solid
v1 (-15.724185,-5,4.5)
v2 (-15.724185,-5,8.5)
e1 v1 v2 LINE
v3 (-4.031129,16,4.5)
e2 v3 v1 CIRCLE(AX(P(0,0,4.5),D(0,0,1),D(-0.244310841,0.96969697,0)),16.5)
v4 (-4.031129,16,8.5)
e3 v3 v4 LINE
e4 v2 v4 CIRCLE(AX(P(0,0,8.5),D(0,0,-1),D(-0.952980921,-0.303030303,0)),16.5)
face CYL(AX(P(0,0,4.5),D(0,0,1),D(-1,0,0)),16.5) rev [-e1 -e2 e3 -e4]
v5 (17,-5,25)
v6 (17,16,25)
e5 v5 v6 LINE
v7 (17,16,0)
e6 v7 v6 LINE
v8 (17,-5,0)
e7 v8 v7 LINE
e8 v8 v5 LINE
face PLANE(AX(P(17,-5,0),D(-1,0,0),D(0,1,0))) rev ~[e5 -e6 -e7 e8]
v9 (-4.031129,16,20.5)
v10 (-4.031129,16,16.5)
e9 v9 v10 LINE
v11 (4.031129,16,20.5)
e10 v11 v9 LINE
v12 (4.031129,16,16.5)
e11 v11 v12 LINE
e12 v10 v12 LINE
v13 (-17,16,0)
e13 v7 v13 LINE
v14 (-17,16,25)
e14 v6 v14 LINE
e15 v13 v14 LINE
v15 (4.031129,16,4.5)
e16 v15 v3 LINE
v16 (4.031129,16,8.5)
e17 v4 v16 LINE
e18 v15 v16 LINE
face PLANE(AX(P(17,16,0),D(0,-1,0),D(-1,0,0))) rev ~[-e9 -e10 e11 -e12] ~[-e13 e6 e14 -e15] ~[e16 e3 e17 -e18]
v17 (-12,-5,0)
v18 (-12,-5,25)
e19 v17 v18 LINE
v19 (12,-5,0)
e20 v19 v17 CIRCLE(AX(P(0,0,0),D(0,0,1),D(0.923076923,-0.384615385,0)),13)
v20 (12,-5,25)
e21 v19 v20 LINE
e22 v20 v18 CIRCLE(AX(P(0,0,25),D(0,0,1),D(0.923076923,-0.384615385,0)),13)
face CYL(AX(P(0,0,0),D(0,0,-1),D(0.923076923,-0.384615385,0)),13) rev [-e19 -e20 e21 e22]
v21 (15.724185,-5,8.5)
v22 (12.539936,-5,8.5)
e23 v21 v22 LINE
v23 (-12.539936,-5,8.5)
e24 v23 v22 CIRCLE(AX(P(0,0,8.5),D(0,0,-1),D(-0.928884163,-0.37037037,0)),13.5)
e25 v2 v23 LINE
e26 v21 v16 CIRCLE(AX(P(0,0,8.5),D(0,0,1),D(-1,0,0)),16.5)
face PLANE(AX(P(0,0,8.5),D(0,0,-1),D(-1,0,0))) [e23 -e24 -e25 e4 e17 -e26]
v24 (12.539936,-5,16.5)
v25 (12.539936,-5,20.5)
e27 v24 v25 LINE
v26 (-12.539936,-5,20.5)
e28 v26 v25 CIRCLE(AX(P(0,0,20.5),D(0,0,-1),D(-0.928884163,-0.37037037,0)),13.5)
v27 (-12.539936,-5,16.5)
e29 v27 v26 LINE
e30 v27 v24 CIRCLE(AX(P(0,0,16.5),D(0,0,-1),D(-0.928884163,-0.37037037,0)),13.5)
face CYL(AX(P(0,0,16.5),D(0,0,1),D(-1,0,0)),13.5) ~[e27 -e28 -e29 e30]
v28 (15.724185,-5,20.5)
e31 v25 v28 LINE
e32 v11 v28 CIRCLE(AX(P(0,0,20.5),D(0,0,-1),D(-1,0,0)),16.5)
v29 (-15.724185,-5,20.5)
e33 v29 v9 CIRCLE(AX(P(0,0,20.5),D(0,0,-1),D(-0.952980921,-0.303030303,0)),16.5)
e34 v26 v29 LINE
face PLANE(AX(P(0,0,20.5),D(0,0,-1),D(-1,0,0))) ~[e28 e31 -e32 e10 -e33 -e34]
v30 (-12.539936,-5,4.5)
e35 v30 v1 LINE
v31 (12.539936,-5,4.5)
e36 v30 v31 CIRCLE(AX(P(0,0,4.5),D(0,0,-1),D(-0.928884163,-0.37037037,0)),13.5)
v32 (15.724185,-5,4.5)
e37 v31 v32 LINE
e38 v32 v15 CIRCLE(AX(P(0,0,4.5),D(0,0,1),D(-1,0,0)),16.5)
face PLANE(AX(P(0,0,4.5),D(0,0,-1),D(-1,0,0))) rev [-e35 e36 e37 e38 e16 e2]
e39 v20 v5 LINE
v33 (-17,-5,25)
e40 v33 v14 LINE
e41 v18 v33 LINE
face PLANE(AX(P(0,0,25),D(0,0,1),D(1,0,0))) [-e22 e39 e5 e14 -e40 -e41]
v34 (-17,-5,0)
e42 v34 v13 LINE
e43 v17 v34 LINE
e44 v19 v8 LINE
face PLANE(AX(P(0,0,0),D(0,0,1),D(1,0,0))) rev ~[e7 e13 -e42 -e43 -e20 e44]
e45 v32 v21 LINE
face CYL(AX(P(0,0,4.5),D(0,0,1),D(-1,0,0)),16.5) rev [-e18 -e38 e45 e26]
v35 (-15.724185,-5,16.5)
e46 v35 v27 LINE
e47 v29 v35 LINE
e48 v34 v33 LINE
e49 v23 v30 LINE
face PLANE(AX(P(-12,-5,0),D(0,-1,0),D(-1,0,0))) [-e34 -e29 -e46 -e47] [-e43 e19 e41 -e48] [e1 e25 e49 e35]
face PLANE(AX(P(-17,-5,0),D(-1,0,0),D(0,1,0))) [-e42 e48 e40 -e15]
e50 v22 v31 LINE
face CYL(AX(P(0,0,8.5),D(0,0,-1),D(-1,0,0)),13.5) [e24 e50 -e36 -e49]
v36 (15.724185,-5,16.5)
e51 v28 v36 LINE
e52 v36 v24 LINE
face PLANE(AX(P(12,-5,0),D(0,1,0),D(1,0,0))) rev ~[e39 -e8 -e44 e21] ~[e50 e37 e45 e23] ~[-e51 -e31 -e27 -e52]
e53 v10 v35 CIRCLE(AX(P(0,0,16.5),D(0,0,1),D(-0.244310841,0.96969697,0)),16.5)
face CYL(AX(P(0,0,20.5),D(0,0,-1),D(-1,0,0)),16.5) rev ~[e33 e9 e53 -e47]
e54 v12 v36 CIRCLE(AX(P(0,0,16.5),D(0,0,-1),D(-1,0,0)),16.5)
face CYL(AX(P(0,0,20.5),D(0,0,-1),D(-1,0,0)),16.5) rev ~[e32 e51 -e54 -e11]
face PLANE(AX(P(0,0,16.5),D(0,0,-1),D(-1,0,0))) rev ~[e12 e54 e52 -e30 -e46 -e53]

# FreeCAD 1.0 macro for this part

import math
import FreeCAD as App
import Part
import Sketcher

V = App.Vector
Q = App.Units.Quantity

doc = App.newDocument("Part")
body = doc.addObject("PartDesign::Body", "Body")

# Sketch on XY plane
sketch1 = doc.addObject("Sketcher::SketchObject", "Sketch")
body.addObject(sketch1)
sketch1.AttachmentSupport = (doc.XY_Plane, [""])
sketch1.MapMode = "FlatFace"
sketch1.addGeometry(Part.ArcOfCircle(Part.Circle(V(0, 0, 0), V(0, 0, 1), 13), math.radians(-22.619865), math.radians(202.619865)), False)
sketch1.addGeometry(Part.LineSegment(V(12, -5, 0), V(17, -5, 0)), False)
sketch1.addGeometry(Part.LineSegment(V(17, -5, 0), V(17, 16, 0)), False)
sketch1.addGeometry(Part.LineSegment(V(17, 16, 0), V(-17, 16, 0)), False)
sketch1.addGeometry(Part.LineSegment(V(-17, 16, 0), V(-17, -5, 0)), False)
sketch1.addGeometry(Part.LineSegment(V(-17, -5, 0), V(-12, -5, 0)), False)
sketch1.addConstraint(Sketcher.Constraint("Coincident", 0, 1, 1, 1))
sketch1.addConstraint(Sketcher.Constraint("Coincident", 1, 2, 2, 1))
sketch1.addConstraint(Sketcher.Constraint("Coincident", 2, 2, 3, 1))
sketch1.addConstraint(Sketcher.Constraint("Coincident", 3, 2, 4, 1))
sketch1.addConstraint(Sketcher.Constraint("Coincident", 4, 2, 5, 1))
sketch1.addConstraint(Sketcher.Constraint("Coincident", 5, 2, 0, 2))
sketch1.addConstraint(Sketcher.Constraint("Horizontal", 1))
sketch1.addConstraint(Sketcher.Constraint("Vertical", 2))
sketch1.addConstraint(Sketcher.Constraint("Horizontal", 3))
sketch1.addConstraint(Sketcher.Constraint("Vertical", 4))
sketch1.addConstraint(Sketcher.Constraint("Horizontal", 5))
sketch1.addConstraint(Sketcher.Constraint("Coincident", 0, 3, -1, 1))
sketch1.addConstraint(Sketcher.Constraint("Symmetric", 1, 2, 4, 2, -2))
sketch1.addConstraint(Sketcher.Constraint("Radius", 0, Q("13 mm")))
sketch1.addConstraint(Sketcher.Constraint("DistanceX", 1, 1, 1, 2, Q("5 mm")))
sketch1.addConstraint(Sketcher.Constraint("DistanceY", 2, 1, 2, 2, Q("21 mm")))
sketch1.addConstraint(Sketcher.Constraint("DistanceY", 0, 1, -1, 1, Q("5 mm")))
pad1 = doc.addObject("PartDesign::Pad", "Pad")
body.addObject(pad1)
pad1.Profile = sketch1
pad1.Length = 25

# Sketch on XZ plane
sketch2 = doc.addObject("Sketcher::SketchObject", "Sketch001")
body.addObject(sketch2)
sketch2.AttachmentSupport = (doc.XZ_Plane, [""])
sketch2.MapMode = "FlatFace"
sketch2.addGeometry(Part.LineSegment(V(-16.5, 16.5, 0), V(-13.5, 16.5, 0)), False)
sketch2.addGeometry(Part.LineSegment(V(-13.5, 16.5, 0), V(-13.5, 20.5, 0)), False)
sketch2.addGeometry(Part.LineSegment(V(-13.5, 20.5, 0), V(-16.5, 20.5, 0)), False)
sketch2.addGeometry(Part.LineSegment(V(-16.5, 20.5, 0), V(-16.5, 16.5, 0)), False)
sketch2.addGeometry(Part.LineSegment(V(-13.5, 8.5, 0), V(-16.5, 8.5, 0)), False)
sketch2.addGeometry(Part.LineSegment(V(-16.5, 8.5, 0), V(-16.5, 4.5, 0)), False)
sketch2.addGeometry(Part.LineSegment(V(-16.5, 4.5, 0), V(-13.5, 4.5, 0)), False)
sketch2.addGeometry(Part.LineSegment(V(-13.5, 4.5, 0), V(-13.5, 8.5, 0)), False)
sketch2.addGeometry(Part.LineSegment(V(13.5, 16.5, 0), V(16.5, 16.5, 0)), False)
sketch2.addGeometry(Part.LineSegment(V(16.5, 16.5, 0), V(16.5, 20.5, 0)), False)
sketch2.addGeometry(Part.LineSegment(V(16.5, 20.5, 0), V(13.5, 20.5, 0)), False)
sketch2.addGeometry(Part.LineSegment(V(13.5, 20.5, 0), V(13.5, 16.5, 0)), False)
sketch2.addGeometry(Part.LineSegment(V(16.5, 8.5, 0), V(13.5, 8.5, 0)), False)
sketch2.addGeometry(Part.LineSegment(V(13.5, 8.5, 0), V(13.5, 4.5, 0)), False)
sketch2.addGeometry(Part.LineSegment(V(13.5, 4.5, 0), V(16.5, 4.5, 0)), False)
sketch2.addGeometry(Part.LineSegment(V(16.5, 4.5, 0), V(16.5, 8.5, 0)), False)
sketch2.addConstraint(Sketcher.Constraint("Coincident", 0, 2, 1, 1))
sketch2.addConstraint(Sketcher.Constraint("Coincident", 1, 2, 2, 1))
sketch2.addConstraint(Sketcher.Constraint("Coincident", 2, 2, 3, 1))
sketch2.addConstraint(Sketcher.Constraint("Coincident", 3, 2, 0, 1))
sketch2.addConstraint(Sketcher.Constraint("Coincident", 4, 2, 5, 1))
sketch2.addConstraint(Sketcher.Constraint("Coincident", 5, 2, 6, 1))
sketch2.addConstraint(Sketcher.Constraint("Coincident", 6, 2, 7, 1))
sketch2.addConstraint(Sketcher.Constraint("Coincident", 7, 2, 4, 1))
sketch2.addConstraint(Sketcher.Constraint("Coincident", 8, 2, 9, 1))
sketch2.addConstraint(Sketcher.Constraint("Coincident", 9, 2, 10, 1))
sketch2.addConstraint(Sketcher.Constraint("Coincident", 10, 2, 11, 1))
sketch2.addConstraint(Sketcher.Constraint("Coincident", 11, 2, 8, 1))
sketch2.addConstraint(Sketcher.Constraint("Coincident", 12, 2, 13, 1))
sketch2.addConstraint(Sketcher.Constraint("Coincident", 13, 2, 14, 1))
sketch2.addConstraint(Sketcher.Constraint("Coincident", 14, 2, 15, 1))
sketch2.addConstraint(Sketcher.Constraint("Coincident", 15, 2, 12, 1))
sketch2.addConstraint(Sketcher.Constraint("Horizontal", 0))
sketch2.addConstraint(Sketcher.Constraint("Vertical", 1))
sketch2.addConstraint(Sketcher.Constraint("Horizontal", 2))
sketch2.addConstraint(Sketcher.Constraint("Vertical", 3))
sketch2.addConstraint(Sketcher.Constraint("Horizontal", 4))
sketch2.addConstraint(Sketcher.Constraint("Vertical", 5))
sketch2.addConstraint(Sketcher.Constraint("Horizontal", 6))
sketch2.addConstraint(Sketcher.Constraint("Vertical", 7))
sketch2.addConstraint(Sketcher.Constraint("Horizontal", 8))
sketch2.addConstraint(Sketcher.Constraint("Vertical", 9))
sketch2.addConstraint(Sketcher.Constraint("Horizontal", 10))
sketch2.addConstraint(Sketcher.Constraint("Vertical", 11))
sketch2.addConstraint(Sketcher.Constraint("Horizontal", 12))
sketch2.addConstraint(Sketcher.Constraint("Vertical", 13))
sketch2.addConstraint(Sketcher.Constraint("Horizontal", 14))
sketch2.addConstraint(Sketcher.Constraint("Vertical", 15))
sketch2.addConstraint(Sketcher.Constraint("Symmetric", 3, 2, 8, 2, -2))
sketch2.addConstraint(Sketcher.Constraint("Symmetric", 1, 2, 10, 2, -2))
sketch2.addConstraint(Sketcher.Constraint("Symmetric", 7, 2, 12, 2, -2))
sketch2.addConstraint(Sketcher.Constraint("Symmetric", 5, 2, 14, 2, -2))
sketch2.addConstraint(Sketcher.Constraint("Vertical", 3, 2, 4, 2))
sketch2.addConstraint(Sketcher.Constraint("Vertical", 1, 2, 6, 2))
sketch2.addConstraint(Sketcher.Constraint("Equal", 3, 5))
sketch2.addConstraint(Sketcher.Constraint("DistanceX", 0, 1, 0, 2, Q("3 mm")))
sketch2.addConstraint(Sketcher.Constraint("DistanceY", 1, 1, 1, 2, Q("4 mm")))
sketch2.addConstraint(Sketcher.Constraint("DistanceY", 4, 2, 3, 2, Q("8 mm")))
sketch2.addConstraint(Sketcher.Constraint("DistanceX", 0, 2, 8, 2, Q("30 mm")))
sketch2.addConstraint(Sketcher.Constraint("DistanceY", -1, 1, 0, 2, Q("16.5 mm")))
groove = doc.addObject("PartDesign::Groove", "Groove")
body.addObject(groove)
groove.Profile = sketch2
groove.ReferenceAxis = (sketch2, ["V_Axis"])
groove.Angle = 180
groove.Reversed = True

doc.recompute()
